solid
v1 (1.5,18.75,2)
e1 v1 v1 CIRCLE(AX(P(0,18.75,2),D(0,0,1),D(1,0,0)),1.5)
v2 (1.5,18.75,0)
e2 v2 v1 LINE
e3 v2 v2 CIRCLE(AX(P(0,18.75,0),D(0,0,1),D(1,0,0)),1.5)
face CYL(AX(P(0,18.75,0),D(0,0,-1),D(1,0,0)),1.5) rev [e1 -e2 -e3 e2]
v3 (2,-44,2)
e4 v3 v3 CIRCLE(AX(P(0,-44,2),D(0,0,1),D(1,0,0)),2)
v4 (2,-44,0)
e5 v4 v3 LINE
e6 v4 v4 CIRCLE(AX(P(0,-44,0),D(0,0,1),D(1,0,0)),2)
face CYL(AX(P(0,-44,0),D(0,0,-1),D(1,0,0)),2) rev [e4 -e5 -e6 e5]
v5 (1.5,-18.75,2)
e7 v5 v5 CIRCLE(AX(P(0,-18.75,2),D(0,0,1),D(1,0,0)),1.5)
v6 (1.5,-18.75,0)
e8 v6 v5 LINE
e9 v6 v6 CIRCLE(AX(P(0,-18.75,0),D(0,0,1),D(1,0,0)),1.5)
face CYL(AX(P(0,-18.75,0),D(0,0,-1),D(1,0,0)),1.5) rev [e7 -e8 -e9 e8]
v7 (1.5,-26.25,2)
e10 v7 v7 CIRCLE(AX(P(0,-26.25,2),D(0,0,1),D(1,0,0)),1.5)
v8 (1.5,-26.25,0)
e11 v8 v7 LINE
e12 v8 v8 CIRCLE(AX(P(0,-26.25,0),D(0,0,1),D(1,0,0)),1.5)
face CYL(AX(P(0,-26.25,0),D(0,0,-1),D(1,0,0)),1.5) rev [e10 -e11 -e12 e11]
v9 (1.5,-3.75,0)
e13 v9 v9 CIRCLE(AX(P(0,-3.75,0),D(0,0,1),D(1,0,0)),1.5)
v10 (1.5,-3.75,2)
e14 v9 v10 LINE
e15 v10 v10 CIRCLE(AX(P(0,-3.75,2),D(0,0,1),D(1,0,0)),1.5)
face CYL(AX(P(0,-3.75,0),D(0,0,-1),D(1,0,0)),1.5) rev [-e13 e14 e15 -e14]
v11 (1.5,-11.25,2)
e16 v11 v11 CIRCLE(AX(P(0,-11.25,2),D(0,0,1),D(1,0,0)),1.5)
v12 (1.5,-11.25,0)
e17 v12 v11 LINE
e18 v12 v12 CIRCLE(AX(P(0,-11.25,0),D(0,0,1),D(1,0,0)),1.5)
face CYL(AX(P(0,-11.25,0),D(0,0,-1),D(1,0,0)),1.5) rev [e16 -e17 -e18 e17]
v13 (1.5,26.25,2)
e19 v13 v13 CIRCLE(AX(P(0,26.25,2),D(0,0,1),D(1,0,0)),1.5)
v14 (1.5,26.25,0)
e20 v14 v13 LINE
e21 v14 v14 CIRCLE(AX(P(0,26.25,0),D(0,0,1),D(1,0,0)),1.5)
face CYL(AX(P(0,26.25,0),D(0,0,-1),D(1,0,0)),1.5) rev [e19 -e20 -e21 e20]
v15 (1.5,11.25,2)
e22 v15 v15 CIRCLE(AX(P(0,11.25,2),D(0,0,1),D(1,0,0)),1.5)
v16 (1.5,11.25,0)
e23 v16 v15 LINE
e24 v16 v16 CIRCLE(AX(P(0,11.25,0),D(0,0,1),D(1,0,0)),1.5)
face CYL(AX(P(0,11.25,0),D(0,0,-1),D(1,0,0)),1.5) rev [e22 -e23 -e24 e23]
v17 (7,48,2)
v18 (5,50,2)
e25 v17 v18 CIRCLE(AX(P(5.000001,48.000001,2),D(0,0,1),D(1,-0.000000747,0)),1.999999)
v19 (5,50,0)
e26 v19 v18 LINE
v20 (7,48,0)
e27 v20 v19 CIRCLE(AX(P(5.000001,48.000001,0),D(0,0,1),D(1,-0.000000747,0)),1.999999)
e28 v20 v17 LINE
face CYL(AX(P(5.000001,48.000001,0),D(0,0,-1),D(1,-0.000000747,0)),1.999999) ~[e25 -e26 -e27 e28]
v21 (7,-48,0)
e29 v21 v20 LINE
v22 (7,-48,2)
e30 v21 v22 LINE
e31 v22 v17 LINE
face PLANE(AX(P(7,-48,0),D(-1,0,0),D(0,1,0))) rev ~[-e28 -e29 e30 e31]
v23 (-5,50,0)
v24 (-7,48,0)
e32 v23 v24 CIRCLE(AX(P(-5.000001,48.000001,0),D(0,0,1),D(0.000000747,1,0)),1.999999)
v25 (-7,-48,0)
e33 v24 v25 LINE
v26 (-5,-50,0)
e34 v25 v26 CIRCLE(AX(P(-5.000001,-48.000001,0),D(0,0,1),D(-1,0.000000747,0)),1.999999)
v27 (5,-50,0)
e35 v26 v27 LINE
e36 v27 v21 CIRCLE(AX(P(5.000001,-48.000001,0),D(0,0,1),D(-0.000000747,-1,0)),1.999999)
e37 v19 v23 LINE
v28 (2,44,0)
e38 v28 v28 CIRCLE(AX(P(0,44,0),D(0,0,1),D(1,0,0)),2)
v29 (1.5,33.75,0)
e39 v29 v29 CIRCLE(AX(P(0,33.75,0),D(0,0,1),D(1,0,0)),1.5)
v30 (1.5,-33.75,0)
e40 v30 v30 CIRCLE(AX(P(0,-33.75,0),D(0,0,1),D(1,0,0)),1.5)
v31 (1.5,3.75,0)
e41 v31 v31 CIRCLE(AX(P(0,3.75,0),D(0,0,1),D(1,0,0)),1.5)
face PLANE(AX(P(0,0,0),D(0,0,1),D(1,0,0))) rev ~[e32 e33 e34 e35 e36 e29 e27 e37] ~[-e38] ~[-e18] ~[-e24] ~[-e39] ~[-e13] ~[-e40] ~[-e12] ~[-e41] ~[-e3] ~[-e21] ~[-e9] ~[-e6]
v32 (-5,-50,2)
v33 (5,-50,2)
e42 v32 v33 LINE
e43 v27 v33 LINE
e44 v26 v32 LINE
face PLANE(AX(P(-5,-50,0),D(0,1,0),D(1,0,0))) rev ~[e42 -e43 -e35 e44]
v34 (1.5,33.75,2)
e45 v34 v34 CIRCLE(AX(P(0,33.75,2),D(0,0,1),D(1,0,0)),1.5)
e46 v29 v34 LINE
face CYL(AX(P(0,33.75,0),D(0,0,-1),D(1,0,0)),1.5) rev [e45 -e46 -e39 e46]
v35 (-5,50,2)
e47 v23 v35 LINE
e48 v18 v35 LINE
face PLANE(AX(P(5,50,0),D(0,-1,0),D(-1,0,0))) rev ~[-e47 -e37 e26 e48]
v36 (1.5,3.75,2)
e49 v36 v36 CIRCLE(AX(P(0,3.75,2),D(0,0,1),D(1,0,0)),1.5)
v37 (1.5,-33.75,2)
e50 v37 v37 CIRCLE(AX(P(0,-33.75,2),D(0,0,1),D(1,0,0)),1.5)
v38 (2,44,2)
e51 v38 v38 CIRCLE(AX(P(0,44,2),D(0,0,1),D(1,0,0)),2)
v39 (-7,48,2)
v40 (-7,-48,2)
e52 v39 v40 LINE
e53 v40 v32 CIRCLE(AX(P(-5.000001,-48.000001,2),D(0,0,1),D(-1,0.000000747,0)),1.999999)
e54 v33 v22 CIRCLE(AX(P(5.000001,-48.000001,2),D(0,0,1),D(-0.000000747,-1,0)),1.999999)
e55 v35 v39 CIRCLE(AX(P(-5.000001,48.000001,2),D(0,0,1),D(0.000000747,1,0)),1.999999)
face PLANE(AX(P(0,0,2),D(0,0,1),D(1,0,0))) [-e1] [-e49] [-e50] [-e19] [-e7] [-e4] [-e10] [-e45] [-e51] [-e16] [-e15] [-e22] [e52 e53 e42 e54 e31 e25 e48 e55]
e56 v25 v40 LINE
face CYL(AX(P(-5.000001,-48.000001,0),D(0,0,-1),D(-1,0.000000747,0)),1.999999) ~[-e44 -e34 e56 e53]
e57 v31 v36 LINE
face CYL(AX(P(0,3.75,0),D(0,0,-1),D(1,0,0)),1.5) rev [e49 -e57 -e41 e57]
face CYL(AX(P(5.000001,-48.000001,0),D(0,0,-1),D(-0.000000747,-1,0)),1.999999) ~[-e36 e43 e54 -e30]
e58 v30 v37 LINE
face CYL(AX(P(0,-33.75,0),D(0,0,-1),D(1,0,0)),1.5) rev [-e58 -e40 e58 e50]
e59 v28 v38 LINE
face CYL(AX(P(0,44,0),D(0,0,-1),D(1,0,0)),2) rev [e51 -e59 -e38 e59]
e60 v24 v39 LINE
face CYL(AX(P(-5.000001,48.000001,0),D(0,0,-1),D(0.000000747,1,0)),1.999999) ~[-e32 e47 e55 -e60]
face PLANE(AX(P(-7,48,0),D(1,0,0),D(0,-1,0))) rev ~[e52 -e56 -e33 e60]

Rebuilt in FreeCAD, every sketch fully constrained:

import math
import FreeCAD as App
import Part
import Sketcher

V = App.Vector
Q = App.Units.Quantity

doc = App.newDocument("Part")
body = doc.addObject("PartDesign::Body", "Body")

# Sketch on XY plane
sketch1 = doc.addObject("Sketcher::SketchObject", "Sketch")
body.addObject(sketch1)
sketch1.AttachmentSupport = (doc.XY_Plane, [""])
sketch1.MapMode = "FlatFace"
sketch1.addGeometry([
    Part.ArcOfCircle(Part.Circle(V(5, 48, 0), V(0, 0, 1), 2), math.radians(0), math.radians(90)),  # 0
    Part.LineSegment(V(5, 50, 0), V(-5, 50, 0)),  # 1
    Part.ArcOfCircle(Part.Circle(V(-5, 48, 0), V(0, 0, 1), 2), math.radians(90), math.radians(180)),  # 2
    Part.LineSegment(V(-7, 48, 0), V(-7, -48, 0)),  # 3
    Part.ArcOfCircle(Part.Circle(V(-5, -48, 0), V(0, 0, 1), 2), math.radians(180), math.radians(270)),  # 4
    Part.LineSegment(V(-5, -50, 0), V(5, -50, 0)),  # 5
    Part.ArcOfCircle(Part.Circle(V(5, -48, 0), V(0, 0, 1), 2), math.radians(-90), math.radians(0)),  # 6
    Part.LineSegment(V(7, -48, 0), V(7, 48, 0)),  # 7
    Part.Circle(V(0, -44, 0), V(0, 0, 1), 2),  # 8
    Part.Circle(V(0, -33.8, 0), V(0, 0, 1), 1.5),  # 9
    Part.Circle(V(0, -26.2, 0), V(0, 0, 1), 1.5),  # 10
    Part.Circle(V(0, -18.8, 0), V(0, 0, 1), 1.5),  # 11
    Part.Circle(V(0, -11.2, 0), V(0, 0, 1), 1.5),  # 12
    Part.Circle(V(0, -3.8, 0), V(0, 0, 1), 1.5),  # 13
    Part.Circle(V(0, 3.8, 0), V(0, 0, 1), 1.5),  # 14
    Part.Circle(V(0, 11.2, 0), V(0, 0, 1), 1.5),  # 15
    Part.Circle(V(0, 18.8, 0), V(0, 0, 1), 1.5),  # 16
    Part.Circle(V(0, 26.2, 0), V(0, 0, 1), 1.5),  # 17
    Part.Circle(V(0, 33.8, 0), V(0, 0, 1), 1.5),  # 18
    Part.Circle(V(0, 44, 0), V(0, 0, 1), 2),  # 19
], False)
sketch1.addConstraint([
    Sketcher.Constraint("Tangent", 0, 2, 1, 1),
    Sketcher.Constraint("Tangent", 1, 2, 2, 1),
    Sketcher.Constraint("Tangent", 2, 2, 3, 1),
    Sketcher.Constraint("Tangent", 3, 2, 4, 1),
    Sketcher.Constraint("Tangent", 4, 2, 5, 1),
    Sketcher.Constraint("Tangent", 5, 2, 6, 1),
    Sketcher.Constraint("Tangent", 6, 2, 7, 1),
    Sketcher.Constraint("Tangent", 7, 2, 0, 1),
    Sketcher.Constraint("Horizontal", 1),
    Sketcher.Constraint("Vertical", 3),
    Sketcher.Constraint("Horizontal", 5),
    Sketcher.Constraint("Vertical", 7),
    Sketcher.Constraint("Equal", 0, 2),
    Sketcher.Constraint("Equal", 2, 4),
    Sketcher.Constraint("Equal", 4, 6),
    Sketcher.Constraint("Equal", 6, 8),
    Sketcher.Constraint("Equal", 9, 10),
    Sketcher.Constraint("Equal", 10, 11),
    Sketcher.Constraint("Equal", 11, 12),
    Sketcher.Constraint("Equal", 12, 13),
    Sketcher.Constraint("Equal", 13, 14),
    Sketcher.Constraint("Equal", 14, 15),
    Sketcher.Constraint("Equal", 15, 16),
    Sketcher.Constraint("Equal", 16, 17),
    Sketcher.Constraint("Equal", 17, 18),
    Sketcher.Constraint("Equal", 8, 19),
    Sketcher.Constraint("Symmetric", 0, 3, 4, 3, -1, 1),
    Sketcher.Constraint("Symmetric", 13, 3, 14, 3, -1, 1),
    Sketcher.Constraint("Symmetric", 12, 3, 15, 3, -1, 1),
    Sketcher.Constraint("Symmetric", 11, 3, 16, 3, -1, 1),
    Sketcher.Constraint("Symmetric", 10, 3, 17, 3, -1, 1),
    Sketcher.Constraint("Symmetric", 9, 3, 18, 3, -1, 1),
    Sketcher.Constraint("Symmetric", 8, 3, 19, 3, -1, 1),
    Sketcher.Constraint("PointOnObject", 8, 3, -2),
    Sketcher.Constraint("PointOnObject", 9, 3, -2),
    Sketcher.Constraint("PointOnObject", 10, 3, -2),
    Sketcher.Constraint("PointOnObject", 11, 3, -2),
    Sketcher.Constraint("PointOnObject", 12, 3, -2),
    Sketcher.Constraint("PointOnObject", 13, 3, -2),
    Sketcher.Constraint("Diameter", 8, Q("4 mm")),
    Sketcher.Constraint("Diameter", 9, Q("3 mm")),
    Sketcher.Constraint("DistanceX", 1, 2, 1, 1, Q("10 mm")),
    Sketcher.Constraint("DistanceY", 3, 2, 3, 1, Q("96 mm")),
    Sketcher.Constraint("DistanceY", 8, 3, -1, 1, Q("44 mm")),
    Sketcher.Constraint("DistanceY", 9, 3, 11, 3, Q("15 mm")),
    Sketcher.Constraint("DistanceY", 10, 3, 12, 3, Q("15 mm")),
    Sketcher.Constraint("DistanceY", 11, 3, 13, 3, Q("15 mm")),
    Sketcher.Constraint("DistanceY", 12, 3, 14, 3, Q("15 mm")),
    Sketcher.Constraint("DistanceY", 9, 3, 10, 3, Q("7.5 mm")),
])
pad1 = doc.addObject("PartDesign::Pad", "Pad")
body.addObject(pad1)
pad1.Profile = sketch1
pad1.Length = 2

doc.recompute()
